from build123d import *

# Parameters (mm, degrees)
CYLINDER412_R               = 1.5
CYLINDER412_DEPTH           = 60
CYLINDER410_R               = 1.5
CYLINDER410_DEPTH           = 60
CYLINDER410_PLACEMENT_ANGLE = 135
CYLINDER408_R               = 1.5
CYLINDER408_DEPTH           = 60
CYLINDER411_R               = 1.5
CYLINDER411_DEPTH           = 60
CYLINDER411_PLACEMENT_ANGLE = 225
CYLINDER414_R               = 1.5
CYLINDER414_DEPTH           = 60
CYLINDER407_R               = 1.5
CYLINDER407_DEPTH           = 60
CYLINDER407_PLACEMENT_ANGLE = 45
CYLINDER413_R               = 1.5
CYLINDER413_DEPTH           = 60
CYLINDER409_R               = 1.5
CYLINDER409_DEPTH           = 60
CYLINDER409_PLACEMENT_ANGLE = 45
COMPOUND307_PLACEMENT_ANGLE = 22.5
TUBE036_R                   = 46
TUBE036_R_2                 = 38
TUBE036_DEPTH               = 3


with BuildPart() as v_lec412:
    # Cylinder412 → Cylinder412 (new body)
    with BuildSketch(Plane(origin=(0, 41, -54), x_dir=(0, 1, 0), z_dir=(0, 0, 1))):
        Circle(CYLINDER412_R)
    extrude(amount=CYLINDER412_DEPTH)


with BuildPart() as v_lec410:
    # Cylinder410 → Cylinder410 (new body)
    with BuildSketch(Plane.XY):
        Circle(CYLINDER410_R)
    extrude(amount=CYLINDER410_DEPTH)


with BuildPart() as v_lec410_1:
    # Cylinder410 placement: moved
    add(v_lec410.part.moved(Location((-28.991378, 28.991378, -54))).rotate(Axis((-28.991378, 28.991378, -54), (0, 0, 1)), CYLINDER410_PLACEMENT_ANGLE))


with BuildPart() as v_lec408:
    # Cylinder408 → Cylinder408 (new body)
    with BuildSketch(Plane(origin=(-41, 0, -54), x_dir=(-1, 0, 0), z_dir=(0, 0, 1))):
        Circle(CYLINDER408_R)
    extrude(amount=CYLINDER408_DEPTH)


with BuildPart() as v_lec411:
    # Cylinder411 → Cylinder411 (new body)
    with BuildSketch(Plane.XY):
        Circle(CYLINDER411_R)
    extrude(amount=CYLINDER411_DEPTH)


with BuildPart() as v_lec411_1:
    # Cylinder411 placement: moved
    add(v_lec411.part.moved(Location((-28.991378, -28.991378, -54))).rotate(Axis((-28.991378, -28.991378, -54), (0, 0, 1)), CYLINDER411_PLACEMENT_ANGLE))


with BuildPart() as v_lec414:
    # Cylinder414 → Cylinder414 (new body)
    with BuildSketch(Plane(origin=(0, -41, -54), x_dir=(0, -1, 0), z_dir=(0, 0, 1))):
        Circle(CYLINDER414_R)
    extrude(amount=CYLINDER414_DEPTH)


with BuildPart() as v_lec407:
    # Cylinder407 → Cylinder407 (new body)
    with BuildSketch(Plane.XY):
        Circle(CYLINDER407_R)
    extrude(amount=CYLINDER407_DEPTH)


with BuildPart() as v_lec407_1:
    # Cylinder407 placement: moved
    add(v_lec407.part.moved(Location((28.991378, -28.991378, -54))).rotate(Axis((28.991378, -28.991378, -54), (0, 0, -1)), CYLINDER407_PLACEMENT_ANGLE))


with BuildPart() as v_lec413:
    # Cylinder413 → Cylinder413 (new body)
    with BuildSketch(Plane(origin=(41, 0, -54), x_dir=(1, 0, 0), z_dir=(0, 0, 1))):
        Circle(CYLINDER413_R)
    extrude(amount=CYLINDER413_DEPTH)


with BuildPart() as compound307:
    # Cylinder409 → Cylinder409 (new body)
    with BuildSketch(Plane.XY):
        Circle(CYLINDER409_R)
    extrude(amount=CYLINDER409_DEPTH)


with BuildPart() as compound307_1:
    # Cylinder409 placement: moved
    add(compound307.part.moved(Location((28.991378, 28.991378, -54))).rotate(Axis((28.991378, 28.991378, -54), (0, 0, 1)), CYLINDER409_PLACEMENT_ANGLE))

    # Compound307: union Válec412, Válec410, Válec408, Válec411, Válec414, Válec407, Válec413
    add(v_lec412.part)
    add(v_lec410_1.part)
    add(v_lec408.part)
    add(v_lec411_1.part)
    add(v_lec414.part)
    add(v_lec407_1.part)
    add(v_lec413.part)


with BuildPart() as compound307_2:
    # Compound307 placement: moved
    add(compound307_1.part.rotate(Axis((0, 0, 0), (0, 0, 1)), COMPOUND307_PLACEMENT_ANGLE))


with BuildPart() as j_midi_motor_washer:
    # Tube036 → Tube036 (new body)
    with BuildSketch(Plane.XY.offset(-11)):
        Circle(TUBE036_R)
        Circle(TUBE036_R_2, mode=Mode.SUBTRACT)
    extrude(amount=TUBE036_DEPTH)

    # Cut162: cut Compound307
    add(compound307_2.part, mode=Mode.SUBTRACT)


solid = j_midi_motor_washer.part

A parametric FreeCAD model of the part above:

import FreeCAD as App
import Part
import Sketcher

doc = App.newDocument("Part")
body = doc.addObject("PartDesign::Body", "Body")

# Sketch on XY plane
sketch1 = body.newObject("Sketcher::SketchObject", "Sketch")
sketch1.AttachmentSupport = (doc.getObject("XY_Plane"), [""])
sketch1.MapMode = "FlatFace"
sketch1.AttachmentOffset = App.Placement(App.Vector(0, 0, -54), App.Rotation())
sketch1.addGeometry(Part.Circle(App.Vector(0, 41, 0), App.Vector(0, 0, 1), 1.5), False)
sketch1.addConstraint([
    Sketcher.Constraint("PointOnObject", 0, 3, -2),
    Sketcher.Constraint("Diameter", 0, 3.0),
    Sketcher.Constraint("DistanceY", -1, 1, 0, 3, 41.0),
])
pad1 = body.newObject("PartDesign::Pad", "Pad")
pad1.Profile = sketch1
pad1.Length = 60
body2 = doc.addObject("PartDesign::Body", "Body001")

# Sketch on XY plane
sketch2 = body2.newObject("Sketcher::SketchObject", "Sketch001")
sketch2.AttachmentSupport = (doc.getObject("XY_Plane001"), [""])
sketch2.MapMode = "FlatFace"
sketch2.addGeometry(Part.Circle(App.Vector(0, 0, 0), App.Vector(0, 0, 1), 1.5), False)
sketch2.addConstraint([
    Sketcher.Constraint("Coincident", 0, 3, -1, 1),
    Sketcher.Constraint("Diameter", 0, 3.0),
])
pad2 = body2.newObject("PartDesign::Pad", "Pad001")
pad2.Profile = sketch2
pad2.Length = 60
body3 = doc.addObject("PartDesign::Body", "Body002")
doc.recompute()

body2.Placement = App.Placement(App.Vector(-28.991378, 28.991378, -54), App.Rotation(App.Vector(0, 0, 1), 135))
boolean = body3.newObject("PartDesign::Boolean", "Boolean")
boolean.Type = "Fuse"
boolean.addObjects([body2])
body4 = doc.addObject("PartDesign::Body", "Body003")

# Sketch on XY plane
sketch3 = body4.newObject("Sketcher::SketchObject", "Sketch002")
sketch3.AttachmentSupport = (doc.getObject("XY_Plane003"), [""])
sketch3.MapMode = "FlatFace"
sketch3.AttachmentOffset = App.Placement(App.Vector(0, 0, -54), App.Rotation())
sketch3.addGeometry(Part.Circle(App.Vector(-41, 0, 0), App.Vector(0, 0, 1), 1.5), False)
sketch3.addConstraint([
    Sketcher.Constraint("PointOnObject", 0, 3, -1),
    Sketcher.Constraint("Diameter", 0, 3.0),
    Sketcher.Constraint("DistanceX", 0, 3, -1, 1, 41.0),
])
pad3 = body4.newObject("PartDesign::Pad", "Pad002")
pad3.Profile = sketch3
pad3.Length = 60
body5 = doc.addObject("PartDesign::Body", "Body004")

# Sketch on XY plane
sketch4 = body5.newObject("Sketcher::SketchObject", "Sketch003")
sketch4.AttachmentSupport = (doc.getObject("XY_Plane004"), [""])
sketch4.MapMode = "FlatFace"
sketch4.addGeometry(Part.Circle(App.Vector(0, 0, 0), App.Vector(0, 0, 1), 1.5), False)
sketch4.addConstraint([
    Sketcher.Constraint("Coincident", 0, 3, -1, 1),
    Sketcher.Constraint("Diameter", 0, 3.0),
])
pad4 = body5.newObject("PartDesign::Pad", "Pad003")
pad4.Profile = sketch4
pad4.Length = 60
body6 = doc.addObject("PartDesign::Body", "Body005")
doc.recompute()

body5.Placement = App.Placement(App.Vector(-28.991378, -28.991378, -54), App.Rotation(App.Vector(0, 0, 1), 225))
boolean2 = body6.newObject("PartDesign::Boolean", "Boolean001")
boolean2.Type = "Fuse"
boolean2.addObjects([body5])
body7 = doc.addObject("PartDesign::Body", "Body006")

# Sketch on XY plane
sketch5 = body7.newObject("Sketcher::SketchObject", "Sketch004")
sketch5.AttachmentSupport = (doc.getObject("XY_Plane006"), [""])
sketch5.MapMode = "FlatFace"
sketch5.AttachmentOffset = App.Placement(App.Vector(0, 0, -54), App.Rotation())
sketch5.addGeometry(Part.Circle(App.Vector(0, -41, 0), App.Vector(0, 0, 1), 1.5), False)
sketch5.addConstraint([
    Sketcher.Constraint("PointOnObject", 0, 3, -2),
    Sketcher.Constraint("Diameter", 0, 3.0),
    Sketcher.Constraint("DistanceY", 0, 3, -1, 1, 41.0),
])
pad5 = body7.newObject("PartDesign::Pad", "Pad004")
pad5.Profile = sketch5
pad5.Length = 60
body8 = doc.addObject("PartDesign::Body", "Body007")

# Sketch on XY plane
sketch6 = body8.newObject("Sketcher::SketchObject", "Sketch005")
sketch6.AttachmentSupport = (doc.getObject("XY_Plane007"), [""])
sketch6.MapMode = "FlatFace"
sketch6.addGeometry(Part.Circle(App.Vector(0, 0, 0), App.Vector(0, 0, 1), 1.5), False)
sketch6.addConstraint([
    Sketcher.Constraint("Coincident", 0, 3, -1, 1),
    Sketcher.Constraint("Diameter", 0, 3.0),
])
pad6 = body8.newObject("PartDesign::Pad", "Pad005")
pad6.Profile = sketch6
pad6.Length = 60
body9 = doc.addObject("PartDesign::Body", "Body008")
doc.recompute()

body8.Placement = App.Placement(App.Vector(28.991378, -28.991378, -54), App.Rotation(App.Vector(0, 0, -1), 45))
boolean3 = body9.newObject("PartDesign::Boolean", "Boolean002")
boolean3.Type = "Fuse"
boolean3.addObjects([body8])
body10 = doc.addObject("PartDesign::Body", "Body009")

# Sketch on XY plane
sketch7 = body10.newObject("Sketcher::SketchObject", "Sketch006")
sketch7.AttachmentSupport = (doc.getObject("XY_Plane009"), [""])
sketch7.MapMode = "FlatFace"
sketch7.AttachmentOffset = App.Placement(App.Vector(0, 0, -54), App.Rotation())
sketch7.addGeometry(Part.Circle(App.Vector(41, 0, 0), App.Vector(0, 0, 1), 1.5), False)
sketch7.addConstraint([
    Sketcher.Constraint("PointOnObject", 0, 3, -1),
    Sketcher.Constraint("Diameter", 0, 3.0),
    Sketcher.Constraint("DistanceX", -1, 1, 0, 3, 41.0),
])
pad7 = body10.newObject("PartDesign::Pad", "Pad006")
pad7.Profile = sketch7
pad7.Length = 60
body11 = doc.addObject("PartDesign::Body", "Body010")

# Sketch on XY plane
sketch8 = body11.newObject("Sketcher::SketchObject", "Sketch007")
sketch8.AttachmentSupport = (doc.getObject("XY_Plane010"), [""])
sketch8.MapMode = "FlatFace"
sketch8.addGeometry(Part.Circle(App.Vector(0, 0, 0), App.Vector(0, 0, 1), 1.5), False)
sketch8.addConstraint([
    Sketcher.Constraint("Coincident", 0, 3, -1, 1),
    Sketcher.Constraint("Diameter", 0, 3.0),
])
pad8 = body11.newObject("PartDesign::Pad", "Pad007")
pad8.Profile = sketch8
pad8.Length = 60
body12 = doc.addObject("PartDesign::Body", "Body011")
body12.AllowCompound = True
doc.recompute()

body11.Placement = App.Placement(App.Vector(28.991378, 28.991378, -54), App.Rotation(App.Vector(0, 0, 1), 45))
boolean4 = body12.newObject("PartDesign::Boolean", "Boolean003")
boolean4.Type = "Fuse"
boolean4.addObjects([body11])
doc.recompute()

boolean5 = body12.newObject("PartDesign::Boolean", "Boolean004")
boolean5.Type = "Fuse"
boolean5.addObjects([body])
doc.recompute()

boolean6 = body12.newObject("PartDesign::Boolean", "Boolean005")
boolean6.Type = "Fuse"
boolean6.addObjects([body3])
doc.recompute()

boolean7 = body12.newObject("PartDesign::Boolean", "Boolean006")
boolean7.Type = "Fuse"
boolean7.addObjects([body4])
doc.recompute()

boolean8 = body12.newObject("PartDesign::Boolean", "Boolean007")
boolean8.Type = "Fuse"
boolean8.addObjects([body6])
doc.recompute()

boolean9 = body12.newObject("PartDesign::Boolean", "Boolean008")
boolean9.Type = "Fuse"
boolean9.addObjects([body7])
doc.recompute()

boolean10 = body12.newObject("PartDesign::Boolean", "Boolean009")
boolean10.Type = "Fuse"
boolean10.addObjects([body9])
doc.recompute()

boolean11 = body12.newObject("PartDesign::Boolean", "Boolean010")
boolean11.Type = "Fuse"
boolean11.addObjects([body10])
body13 = doc.addObject("PartDesign::Body", "Body012")
body13.AllowCompound = True
doc.recompute()

body12.Placement = App.Placement(App.Vector(0, 0, 0), App.Rotation(App.Vector(0, 0, 1), 22.5))
boolean12 = body13.newObject("PartDesign::Boolean", "Boolean011")
boolean12.Type = "Fuse"
boolean12.addObjects([body12])
body14 = doc.addObject("PartDesign::Body", "Body013")

# Sketch on XY plane
sketch9 = body14.newObject("Sketcher::SketchObject", "Sketch008")
sketch9.AttachmentSupport = (doc.getObject("XY_Plane013"), [""])
sketch9.MapMode = "FlatFace"
sketch9.AttachmentOffset = App.Placement(App.Vector(0, 0, -11), App.Rotation())
sketch9.addGeometry([
    Part.Circle(App.Vector(0, 0, 0), App.Vector(0, 0, 1), 46),
    Part.Circle(App.Vector(0, 0, 0), App.Vector(0, 0, 1), 38),
], False)
sketch9.addConstraint([
    Sketcher.Constraint("Coincident", 0, 3, -1, 1),
    Sketcher.Constraint("Coincident", 1, 3, -1, 1),
    Sketcher.Constraint("Diameter", 0, 92.0),
    Sketcher.Constraint("Diameter", 1, 76.0),
])
pad9 = body14.newObject("PartDesign::Pad", "Pad008")
pad9.Profile = sketch9
pad9.Length = 3
doc.recompute()

boolean13 = body14.newObject("PartDesign::Boolean", "Boolean012")
boolean13.Type = "Cut"
boolean13.addObjects([body13])

doc.recompute()
